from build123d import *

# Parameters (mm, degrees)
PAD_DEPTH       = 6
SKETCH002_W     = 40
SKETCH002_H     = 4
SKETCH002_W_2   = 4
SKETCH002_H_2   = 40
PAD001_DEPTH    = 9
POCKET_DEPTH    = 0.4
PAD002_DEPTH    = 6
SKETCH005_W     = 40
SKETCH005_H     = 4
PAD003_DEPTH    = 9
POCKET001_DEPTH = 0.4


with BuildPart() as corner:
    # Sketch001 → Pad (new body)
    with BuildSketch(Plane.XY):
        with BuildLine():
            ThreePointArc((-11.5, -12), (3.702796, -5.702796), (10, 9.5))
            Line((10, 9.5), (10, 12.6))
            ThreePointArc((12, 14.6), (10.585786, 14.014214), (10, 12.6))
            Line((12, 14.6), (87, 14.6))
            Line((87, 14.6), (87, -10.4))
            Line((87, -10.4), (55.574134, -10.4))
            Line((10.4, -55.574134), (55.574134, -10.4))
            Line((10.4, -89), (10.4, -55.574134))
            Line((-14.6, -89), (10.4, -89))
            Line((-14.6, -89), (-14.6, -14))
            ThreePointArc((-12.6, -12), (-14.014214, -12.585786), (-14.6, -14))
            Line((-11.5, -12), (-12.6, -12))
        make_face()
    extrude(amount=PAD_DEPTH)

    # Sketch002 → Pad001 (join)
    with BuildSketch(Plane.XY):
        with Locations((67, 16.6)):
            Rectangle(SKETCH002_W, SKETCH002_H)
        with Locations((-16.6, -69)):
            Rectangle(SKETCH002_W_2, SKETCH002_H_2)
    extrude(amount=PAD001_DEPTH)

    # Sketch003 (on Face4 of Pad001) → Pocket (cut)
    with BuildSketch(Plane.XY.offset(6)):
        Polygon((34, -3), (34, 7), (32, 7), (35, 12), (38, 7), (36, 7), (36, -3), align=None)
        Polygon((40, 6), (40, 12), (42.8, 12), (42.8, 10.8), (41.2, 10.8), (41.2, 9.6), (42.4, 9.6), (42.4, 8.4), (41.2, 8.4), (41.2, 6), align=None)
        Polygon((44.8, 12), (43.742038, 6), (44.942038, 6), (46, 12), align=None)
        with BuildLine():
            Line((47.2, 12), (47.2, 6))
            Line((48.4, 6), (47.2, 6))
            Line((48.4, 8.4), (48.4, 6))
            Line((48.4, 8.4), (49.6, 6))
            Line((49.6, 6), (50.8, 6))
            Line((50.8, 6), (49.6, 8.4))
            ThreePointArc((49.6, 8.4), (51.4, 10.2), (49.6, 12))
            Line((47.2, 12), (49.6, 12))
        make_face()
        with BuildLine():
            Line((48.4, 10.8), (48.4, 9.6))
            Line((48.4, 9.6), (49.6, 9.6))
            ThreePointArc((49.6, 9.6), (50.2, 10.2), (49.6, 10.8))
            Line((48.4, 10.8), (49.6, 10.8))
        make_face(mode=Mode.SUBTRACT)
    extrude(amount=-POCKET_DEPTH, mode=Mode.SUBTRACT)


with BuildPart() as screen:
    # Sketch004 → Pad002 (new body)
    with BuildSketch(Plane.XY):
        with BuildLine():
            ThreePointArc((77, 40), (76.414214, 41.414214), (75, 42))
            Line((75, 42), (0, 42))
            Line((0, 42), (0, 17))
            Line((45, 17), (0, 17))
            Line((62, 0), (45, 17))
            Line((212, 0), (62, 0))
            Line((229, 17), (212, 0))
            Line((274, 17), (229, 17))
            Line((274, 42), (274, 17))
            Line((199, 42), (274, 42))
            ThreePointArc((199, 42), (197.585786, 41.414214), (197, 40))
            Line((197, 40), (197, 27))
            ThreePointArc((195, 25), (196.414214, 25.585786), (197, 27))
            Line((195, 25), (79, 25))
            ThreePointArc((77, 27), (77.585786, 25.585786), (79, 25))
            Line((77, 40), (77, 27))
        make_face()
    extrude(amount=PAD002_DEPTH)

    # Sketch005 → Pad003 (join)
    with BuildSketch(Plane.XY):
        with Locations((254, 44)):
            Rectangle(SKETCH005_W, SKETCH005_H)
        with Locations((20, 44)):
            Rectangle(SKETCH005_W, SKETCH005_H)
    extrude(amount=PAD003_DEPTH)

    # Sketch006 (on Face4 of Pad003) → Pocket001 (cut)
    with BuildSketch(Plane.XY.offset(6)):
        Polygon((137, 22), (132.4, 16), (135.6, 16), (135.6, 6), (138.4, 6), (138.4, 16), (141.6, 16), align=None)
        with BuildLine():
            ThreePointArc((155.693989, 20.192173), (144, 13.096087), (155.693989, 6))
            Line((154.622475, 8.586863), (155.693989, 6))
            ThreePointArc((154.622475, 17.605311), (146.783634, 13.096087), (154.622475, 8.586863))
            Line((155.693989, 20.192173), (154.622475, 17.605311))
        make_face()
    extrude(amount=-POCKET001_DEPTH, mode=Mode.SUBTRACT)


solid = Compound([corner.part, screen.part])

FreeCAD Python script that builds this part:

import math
import FreeCAD as App
import Part
import Sketcher

V = App.Vector
Q = App.Units.Quantity

doc = App.newDocument("Part")
body = doc.addObject("PartDesign::Body", "Body")

# Sketch on XY plane
sketch1 = body.newObject("Sketcher::SketchObject", "Sketch")
sketch1.AttachmentSupport = (doc.getObject("XY_Plane"), [""])
sketch1.MapMode = "FlatFace"
sketch1.addGeometry(Part.ArcOfCircle(Part.Circle(V(-11.5, 9.5, 0), V(0, 0, 1), 21.5), math.radians(-90), math.radians(0)), False)
sketch1.addGeometry(Part.LineSegment(V(-11.5, -12, 0), V(-12.6, -12, 0)), False)
sketch1.addGeometry(Part.ArcOfCircle(Part.Circle(V(-12.6, -14, 0), V(0, 0, 1), 2), math.radians(90), math.radians(180)), False)
sketch1.addGeometry(Part.LineSegment(V(-14.6, -14, 0), V(-14.6, -89, 0)), False)
sketch1.addGeometry(Part.LineSegment(V(-14.6, -89, 0), V(10.4, -89, 0)), False)
sketch1.addGeometry(Part.LineSegment(V(10.4, -89, 0), V(10.4, -55.6, 0)), False)
sketch1.addGeometry(Part.LineSegment(V(10.4, -55.6, 0), V(55.6, -10.4, 0)), False)
sketch1.addGeometry(Part.LineSegment(V(55.6, -10.4, 0), V(87, -10.4, 0)), False)
sketch1.addGeometry(Part.LineSegment(V(87, -10.4, 0), V(87, 14.6, 0)), False)
sketch1.addGeometry(Part.LineSegment(V(87, 14.6, 0), V(12, 14.6, 0)), False)
sketch1.addGeometry(Part.ArcOfCircle(Part.Circle(V(12, 12.6, 0), V(0, 0, 1), 2), math.radians(90), math.radians(180)), False)
sketch1.addGeometry(Part.LineSegment(V(10, 12.6, 0), V(10, 9.5, 0)), False)
sketch1.addConstraint(Sketcher.Constraint("Tangent", 0, 1, 1, 1))
sketch1.addConstraint(Sketcher.Constraint("Tangent", 1, 2, 2, 1))
sketch1.addConstraint(Sketcher.Constraint("Tangent", 2, 2, 3, 1))
sketch1.addConstraint(Sketcher.Constraint("Coincident", 3, 2, 4, 1))
sketch1.addConstraint(Sketcher.Constraint("Coincident", 4, 2, 5, 1))
sketch1.addConstraint(Sketcher.Constraint("Coincident", 5, 2, 6, 1))
sketch1.addConstraint(Sketcher.Constraint("Coincident", 6, 2, 7, 1))
sketch1.addConstraint(Sketcher.Constraint("Coincident", 7, 2, 8, 1))
sketch1.addConstraint(Sketcher.Constraint("Coincident", 8, 2, 9, 1))
sketch1.addConstraint(Sketcher.Constraint("Tangent", 9, 2, 10, 1))
sketch1.addConstraint(Sketcher.Constraint("Tangent", 10, 2, 11, 1))
sketch1.addConstraint(Sketcher.Constraint("Tangent", 11, 2, 0, 2))
sketch1.addConstraint(Sketcher.Constraint("Horizontal", 1))
sketch1.addConstraint(Sketcher.Constraint("Vertical", 3))
sketch1.addConstraint(Sketcher.Constraint("Horizontal", 4))
sketch1.addConstraint(Sketcher.Constraint("Vertical", 5))
sketch1.addConstraint(Sketcher.Constraint("Horizontal", 7))
sketch1.addConstraint(Sketcher.Constraint("Vertical", 8))
sketch1.addConstraint(Sketcher.Constraint("Horizontal", 9))
sketch1.addConstraint(Sketcher.Constraint("Vertical", 11))
sketch1.addConstraint(Sketcher.Constraint("Equal", 2, 10))
sketch1.addConstraint(Sketcher.Constraint("Equal", 9, 3))
sketch1.addConstraint(Sketcher.Constraint("Equal", 4, 8))
sketch1.addConstraint(Sketcher.Constraint("Radius", 2, Q("1.999999 mm")))
sketch1.addConstraint(Sketcher.Constraint("Radius", 0, Q("21.499999 mm")))
sketch1.addConstraint(Sketcher.Constraint("DistanceX", 4, 1, 4, 2, Q("25 mm")))
sketch1.addConstraint(Sketcher.Constraint("DistanceX", 9, 2, 9, 1, Q("75 mm")))
sketch1.addConstraint(Sketcher.Constraint("Angle", 6, Q("45 deg")))
sketch1.addConstraint(Sketcher.Constraint("DistanceX", 1, 2, 1, 1, Q("1.1 mm")))
sketch1.addConstraint(Sketcher.Constraint("DistanceY", 11, 2, 11, 1, Q("3.1 mm")))
sketch1.addConstraint(Sketcher.Constraint("DistanceY", 2, 3, -1, 1, Q("13.999999 mm")))
sketch1.addConstraint(Sketcher.Constraint("DistanceX", -1, 1, 10, 3, Q("11.999999 mm")))
sketch1.addConstraint(Sketcher.Constraint("DistanceX", 7, 1, 7, 2, Q("31.425866 mm")))
pad1 = body.newObject("PartDesign::Pad", "Pad")
pad1.Profile = sketch1
pad1.Length = 6

# Sketch on XY plane
sketch2 = body.newObject("Sketcher::SketchObject", "Sketch001")
sketch2.AttachmentSupport = (doc.getObject("XY_Plane"), [""])
sketch2.MapMode = "FlatFace"
sketch2.addGeometry(Part.LineSegment(V(47, 18.6, 0), V(47, 14.6, 0)), False)
sketch2.addGeometry(Part.LineSegment(V(47, 14.6, 0), V(87, 14.6, 0)), False)
sketch2.addGeometry(Part.LineSegment(V(87, 14.6, 0), V(87, 18.6, 0)), False)
sketch2.addGeometry(Part.LineSegment(V(87, 18.6, 0), V(47, 18.6, 0)), False)
sketch2.addGeometry(Part.LineSegment(V(-18.6, -49, 0), V(-18.6, -89, 0)), False)
sketch2.addGeometry(Part.LineSegment(V(-18.6, -89, 0), V(-14.6, -89, 0)), False)
sketch2.addGeometry(Part.LineSegment(V(-14.6, -89, 0), V(-14.6, -49, 0)), False)
sketch2.addGeometry(Part.LineSegment(V(-14.6, -49, 0), V(-18.6, -49, 0)), False)
sketch2.addConstraint(Sketcher.Constraint("Coincident", 0, 2, 1, 1))
sketch2.addConstraint(Sketcher.Constraint("Coincident", 1, 2, 2, 1))
sketch2.addConstraint(Sketcher.Constraint("Coincident", 2, 2, 3, 1))
sketch2.addConstraint(Sketcher.Constraint("Coincident", 3, 2, 0, 1))
sketch2.addConstraint(Sketcher.Constraint("Coincident", 4, 2, 5, 1))
sketch2.addConstraint(Sketcher.Constraint("Coincident", 5, 2, 6, 1))
sketch2.addConstraint(Sketcher.Constraint("Coincident", 6, 2, 7, 1))
sketch2.addConstraint(Sketcher.Constraint("Coincident", 7, 2, 4, 1))
sketch2.addConstraint(Sketcher.Constraint("Vertical", 0))
sketch2.addConstraint(Sketcher.Constraint("Horizontal", 1))
sketch2.addConstraint(Sketcher.Constraint("Vertical", 2))
sketch2.addConstraint(Sketcher.Constraint("Horizontal", 3))
sketch2.addConstraint(Sketcher.Constraint("Vertical", 4))
sketch2.addConstraint(Sketcher.Constraint("Horizontal", 5))
sketch2.addConstraint(Sketcher.Constraint("Vertical", 6))
sketch2.addConstraint(Sketcher.Constraint("Horizontal", 7))
sketch2.addConstraint(Sketcher.Constraint("Equal", 7, 0))
sketch2.addConstraint(Sketcher.Constraint("Equal", 3, 4))
sketch2.addConstraint(Sketcher.Constraint("DistanceX", 1, 1, 1, 2, Q("40 mm")))
sketch2.addConstraint(Sketcher.Constraint("DistanceX", 5, 1, 5, 2, Q("4 mm")))
sketch2.addConstraint(Sketcher.Constraint("DistanceX", -1, 1, 0, 2, Q("47 mm")))
sketch2.addConstraint(Sketcher.Constraint("DistanceY", 4, 2, -1, 1, Q("89 mm")))
sketch2.addConstraint(Sketcher.Constraint("DistanceY", -1, 1, 0, 2, Q("14.6 mm")))
sketch2.addConstraint(Sketcher.Constraint("DistanceX", 4, 2, -1, 1, Q("18.6 mm")))
pad2 = body.newObject("PartDesign::Pad", "Pad001")
pad2.Profile = sketch2
pad2.Length = 9

# Sketch on XY plane
sketch3 = body.newObject("Sketcher::SketchObject", "Sketch002")
sketch3.AttachmentSupport = (doc.getObject("XY_Plane"), [""])
sketch3.MapMode = "FlatFace"
sketch3.AttachmentOffset = App.Placement(V(0, 0, 6), App.Rotation())
sketch3.addGeometry(Part.LineSegment(V(34, 7, 0), V(34, -3, 0)), False)
sketch3.addGeometry(Part.LineSegment(V(34, -3, 0), V(36, -3, 0)), False)
sketch3.addGeometry(Part.LineSegment(V(36, -3, 0), V(36, 7, 0)), False)
sketch3.addGeometry(Part.LineSegment(V(36, 7, 0), V(38, 7, 0)), False)
sketch3.addGeometry(Part.LineSegment(V(38, 7, 0), V(35, 12, 0)), False)
sketch3.addGeometry(Part.LineSegment(V(35, 12, 0), V(32, 7, 0)), False)
sketch3.addGeometry(Part.LineSegment(V(32, 7, 0), V(34, 7, 0)), False)
sketch3.addGeometry(Part.LineSegment(V(40, 12, 0), V(40, 6, 0)), False)
sketch3.addGeometry(Part.LineSegment(V(40, 6, 0), V(41.2, 6, 0)), False)
sketch3.addGeometry(Part.LineSegment(V(41.2, 6, 0), V(41.2, 8.4, 0)), False)
sketch3.addGeometry(Part.LineSegment(V(41.2, 8.4, 0), V(42.4, 8.4, 0)), False)
sketch3.addGeometry(Part.LineSegment(V(42.4, 8.4, 0), V(42.4, 9.6, 0)), False)
sketch3.addGeometry(Part.LineSegment(V(42.4, 9.6, 0), V(41.2, 9.6, 0)), False)
sketch3.addGeometry(Part.LineSegment(V(41.2, 9.6, 0), V(41.2, 10.8, 0)), False)
sketch3.addGeometry(Part.LineSegment(V(41.2, 10.8, 0), V(42.8, 10.8, 0)), False)
sketch3.addGeometry(Part.LineSegment(V(42.8, 10.8, 0), V(42.8, 12, 0)), False)
sketch3.addGeometry(Part.LineSegment(V(42.8, 12, 0), V(40, 12, 0)), False)
sketch3.addGeometry(Part.LineSegment(V(44.8, 12, 0), V(43.7, 6, 0)), False)
sketch3.addGeometry(Part.LineSegment(V(43.7, 6, 0), V(44.9, 6, 0)), False)
sketch3.addGeometry(Part.LineSegment(V(44.9, 6, 0), V(46, 12, 0)), False)
sketch3.addGeometry(Part.LineSegment(V(46, 12, 0), V(44.8, 12, 0)), False)
sketch3.addGeometry(Part.LineSegment(V(47.2, 12, 0), V(47.2, 6, 0)), False)
sketch3.addGeometry(Part.LineSegment(V(47.2, 6, 0), V(48.4, 6, 0)), False)
sketch3.addGeometry(Part.LineSegment(V(48.4, 6, 0), V(48.4, 8.4, 0)), False)
sketch3.addGeometry(Part.LineSegment(V(48.4, 8.4, 0), V(49.6, 6, 0)), False)
sketch3.addGeometry(Part.LineSegment(V(49.6, 6, 0), V(50.8, 6, 0)), False)
sketch3.addGeometry(Part.LineSegment(V(50.8, 6, 0), V(49.6, 8.4, 0)), False)
sketch3.addGeometry(Part.ArcOfCircle(Part.Circle(V(49.6, 10.2, 0), V(0, 0, 1), 1.8), math.radians(-90), math.radians(90)), False)
sketch3.addGeometry(Part.LineSegment(V(49.6, 12, 0), V(47.2, 12, 0)), False)
sketch3.addGeometry(Part.LineSegment(V(48.4, 9.6, 0), V(48.4, 10.8, 0)), False)
sketch3.addGeometry(Part.LineSegment(V(48.4, 10.8, 0), V(49.6, 10.8, 0)), False)
sketch3.addGeometry(Part.ArcOfCircle(Part.Circle(V(49.6, 10.2, 0), V(0, 0, 1), 0.6), math.radians(-90), math.radians(90)), False)
sketch3.addGeometry(Part.LineSegment(V(49.6, 9.6, 0), V(48.4, 9.6, 0)), False)
sketch3.addConstraint(Sketcher.Constraint("Coincident", 0, 2, 1, 1))
sketch3.addConstraint(Sketcher.Constraint("Coincident", 1, 2, 2, 1))
sketch3.addConstraint(Sketcher.Constraint("Coincident", 2, 2, 3, 1))
sketch3.addConstraint(Sketcher.Constraint("Coincident", 3, 2, 4, 1))
sketch3.addConstraint(Sketcher.Constraint("Coincident", 4, 2, 5, 1))
sketch3.addConstraint(Sketcher.Constraint("Coincident", 5, 2, 6, 1))
sketch3.addConstraint(Sketcher.Constraint("Coincident", 6, 2, 0, 1))
sketch3.addConstraint(Sketcher.Constraint("Coincident", 7, 2, 8, 1))
sketch3.addConstraint(Sketcher.Constraint("Coincident", 8, 2, 9, 1))
sketch3.addConstraint(Sketcher.Constraint("Coincident", 9, 2, 10, 1))
sketch3.addConstraint(Sketcher.Constraint("Coincident", 10, 2, 11, 1))
sketch3.addConstraint(Sketcher.Constraint("Coincident", 11, 2, 12, 1))
sketch3.addConstraint(Sketcher.Constraint("Coincident", 12, 2, 13, 1))
sketch3.addConstraint(Sketcher.Constraint("Coincident", 13, 2, 14, 1))
sketch3.addConstraint(Sketcher.Constraint("Coincident", 14, 2, 15, 1))
sketch3.addConstraint(Sketcher.Constraint("Coincident", 15, 2, 16, 1))
sketch3.addConstraint(Sketcher.Constraint("Coincident", 16, 2, 7, 1))
sketch3.addConstraint(Sketcher.Constraint("Coincident", 17, 2, 18, 1))
sketch3.addConstraint(Sketcher.Constraint("Coincident", 18, 2, 19, 1))
sketch3.addConstraint(Sketcher.Constraint("Coincident", 19, 2, 20, 1))
sketch3.addConstraint(Sketcher.Constraint("Coincident", 20, 2, 17, 1))
sketch3.addConstraint(Sketcher.Constraint("Coincident", 21, 2, 22, 1))
sketch3.addConstraint(Sketcher.Constraint("Coincident", 22, 2, 23, 1))
sketch3.addConstraint(Sketcher.Constraint("Coincident", 23, 2, 24, 1))
sketch3.addConstraint(Sketcher.Constraint("Coincident", 24, 2, 25, 1))
sketch3.addConstraint(Sketcher.Constraint("Coincident", 25, 2, 26, 1))
sketch3.addConstraint(Sketcher.Constraint("Coincident", 26, 2, 27, 1))
sketch3.addConstraint(Sketcher.Constraint("Tangent", 27, 2, 28, 1))
sketch3.addConstraint(Sketcher.Constraint("Coincident", 28, 2, 21, 1))
sketch3.addConstraint(Sketcher.Constraint("Coincident", 29, 2, 30, 1))
sketch3.addConstraint(Sketcher.Constraint("Tangent", 30, 2, 31, 2))
sketch3.addConstraint(Sketcher.Constraint("Tangent", 31, 1, 32, 1))
sketch3.addConstraint(Sketcher.Constraint("Coincident", 32, 2, 29, 1))
sketch3.addConstraint(Sketcher.Constraint("Vertical", 0))
sketch3.addConstraint(Sketcher.Constraint("Horizontal", 1))
sketch3.addConstraint(Sketcher.Constraint("Vertical", 2))
sketch3.addConstraint(Sketcher.Constraint("Horizontal", 3))
sketch3.addConstraint(Sketcher.Constraint("Horizontal", 6))
sketch3.addConstraint(Sketcher.Constraint("Vertical", 7))
sketch3.addConstraint(Sketcher.Constraint("Horizontal", 8))
sketch3.addConstraint(Sketcher.Constraint("Vertical", 9))
sketch3.addConstraint(Sketcher.Constraint("Horizontal", 10))
sketch3.addConstraint(Sketcher.Constraint("Vertical", 11))
sketch3.addConstraint(Sketcher.Constraint("Horizontal", 12))
sketch3.addConstraint(Sketcher.Constraint("Vertical", 13))
sketch3.addConstraint(Sketcher.Constraint("Horizontal", 14))
sketch3.addConstraint(Sketcher.Constraint("Vertical", 15))
sketch3.addConstraint(Sketcher.Constraint("Horizontal", 16))
sketch3.addConstraint(Sketcher.Constraint("Horizontal", 18))
sketch3.addConstraint(Sketcher.Constraint("Horizontal", 20))
sketch3.addConstraint(Sketcher.Constraint("Vertical", 21))
sketch3.addConstraint(Sketcher.Constraint("Horizontal", 22))
sketch3.addConstraint(Sketcher.Constraint("Vertical", 23))
sketch3.addConstraint(Sketcher.Constraint("Horizontal", 25))
sketch3.addConstraint(Sketcher.Constraint("Horizontal", 28))
sketch3.addConstraint(Sketcher.Constraint("Vertical", 29))
sketch3.addConstraint(Sketcher.Constraint("Horizontal", 30))
sketch3.addConstraint(Sketcher.Constraint("Horizontal", 32))
sketch3.addConstraint(Sketcher.Constraint("Coincident", 31, 3, 27, 3))
sketch3.addConstraint(Sketcher.Constraint("Parallel", 17, 19))
sketch3.addConstraint(Sketcher.Constraint("Parallel", 24, 26))
sketch3.addConstraint(Sketcher.Constraint("Horizontal", 3, 2, 5, 2))
sketch3.addConstraint(Sketcher.Constraint("Horizontal", 4, 2, 15, 2))
sketch3.addConstraint(Sketcher.Constraint("Horizontal", 8, 2, 17, 2))
sketch3.addConstraint(Sketcher.Constraint("Horizontal", 16, 2, 19, 2))
sketch3.addConstraint(Sketcher.Constraint("Horizontal", 18, 2, 21, 2))
sketch3.addConstraint(Sketcher.Constraint("Horizontal", 10, 2, 23, 2))
sketch3.addConstraint(Sketcher.Constraint("Horizontal", 22, 2, 24, 2))
sketch3.addConstraint(Sketcher.Constraint("Horizontal", 23, 2, 26, 2))
sketch3.addConstraint(Sketcher.Constraint("Horizontal", 20, 2, 27, 2))
sketch3.addConstraint(Sketcher.Constraint("Horizontal", 14, 2, 29, 2))
sketch3.addConstraint(Sketcher.Constraint("Horizontal", 12, 2, 31, 1))
sketch3.addConstraint(Sketcher.Constraint("Vertical", 9, 2, 12, 2))
sketch3.addConstraint(Sketcher.Constraint("Vertical", 31, 3, 24, 2))
sketch3.addConstraint(Sketcher.Constraint("Vertical", 24, 2, 26, 2))
sketch3.addConstraint(Sketcher.Constraint("Vertical", 23, 2, 29, 2))
sketch3.addConstraint(Sketcher.Constraint("Equal", 1, 3))
sketch3.addConstraint(Sketcher.Constraint("Equal", 3, 6))
sketch3.addConstraint(Sketcher.Constraint("Equal", 8, 10))
sketch3.addConstraint(Sketcher.Constraint("Equal", 12, 18))
sketch3.addConstraint(Sketcher.Constraint("Equal", 20, 22))
sketch3.addConstraint(Sketcher.Constraint("Equal", 22, 25))
sketch3.addConstraint(Sketcher.Constraint("Equal", 28, 9))
sketch3.addConstraint(Sketcher.Constraint("Equal", 32, 11))
sketch3.addConstraint(Sketcher.Constraint("Equal", 11, 13))
sketch3.addConstraint(Sketcher.Constraint("Equal", 4, 5))
sketch3.addConstraint(Sketcher.Constraint("Radius", 27, Q("1.8 mm")))
sketch3.addConstraint(Sketcher.Constraint("DistanceX", 1, 1, 1, 2, Q("2 mm")))
sketch3.addConstraint(Sketcher.Constraint("DistanceY", 0, 2, 0, 1, Q("10 mm")))
sketch3.addConstraint(Sketcher.Constraint("Angle", 17, Q("-100.000001 deg")))
sketch3.addConstraint(Sketcher.Constraint("DistanceX", 14, 1, 14, 2, Q("1.6 mm")))
sketch3.addConstraint(Sketcher.Constraint("DistanceX", -1, 1, 0, 2, Q("34 mm")))
sketch3.addConstraint(Sketcher.Constraint("DistanceY", 0, 2, -1, 1, Q("3 mm")))
sketch3.addConstraint(Sketcher.Constraint("DistanceY", -1, 1, 4, 2, Q("12 mm")))
sketch3.addConstraint(Sketcher.Constraint("DistanceX", -1, 1, 7, 2, Q("40 mm")))
sketch3.addConstraint(Sketcher.Constraint("DistanceX", -1, 1, 19, 2, Q("46 mm")))
sketch3.addConstraint(Sketcher.Constraint("DistanceX", -1, 1, 27, 3, Q("49.6 mm")))
pocket1 = body.newObject("PartDesign::Pocket", "Pocket")
pocket1.Profile = sketch3
pocket1.Length = 0.4
body2 = doc.addObject("PartDesign::Body", "Body001")

# Sketch on XY plane
sketch4 = body2.newObject("Sketcher::SketchObject", "Sketch003")
sketch4.AttachmentSupport = (doc.getObject("XY_Plane001"), [""])
sketch4.MapMode = "FlatFace"
sketch4.addGeometry(Part.ArcOfCircle(Part.Circle(V(75, 40, 0), V(0, 0, 1), 2), math.radians(0), math.radians(90)), False)
sketch4.addGeometry(Part.LineSegment(V(75, 42, 0), V(0, 42, 0)), False)
sketch4.addGeometry(Part.LineSegment(V(0, 42, 0), V(0, 17, 0)), False)
sketch4.addGeometry(Part.LineSegment(V(0, 17, 0), V(45, 17, 0)), False)
sketch4.addGeometry(Part.LineSegment(V(45, 17, 0), V(62, 0, 0)), False)
sketch4.addGeometry(Part.LineSegment(V(62, 0, 0), V(212, 0, 0)), False)
sketch4.addGeometry(Part.LineSegment(V(212, 0, 0), V(229, 17, 0)), False)
sketch4.addGeometry(Part.LineSegment(V(229, 17, 0), V(274, 17, 0)), False)
sketch4.addGeometry(Part.LineSegment(V(274, 17, 0), V(274, 42, 0)), False)
sketch4.addGeometry(Part.LineSegment(V(274, 42, 0), V(199, 42, 0)), False)
sketch4.addGeometry(Part.ArcOfCircle(Part.Circle(V(199, 40, 0), V(0, 0, 1), 2), math.radians(90), math.radians(180)), False)
sketch4.addGeometry(Part.LineSegment(V(197, 40, 0), V(197, 27, 0)), False)
sketch4.addGeometry(Part.ArcOfCircle(Part.Circle(V(195, 27, 0), V(0, 0, 1), 2), math.radians(-90), math.radians(0)), False)
sketch4.addGeometry(Part.LineSegment(V(195, 25, 0), V(79, 25, 0)), False)
sketch4.addGeometry(Part.ArcOfCircle(Part.Circle(V(79, 27, 0), V(0, 0, 1), 2), math.radians(180), math.radians(270)), False)
sketch4.addGeometry(Part.LineSegment(V(77, 27, 0), V(77, 40, 0)), False)
sketch4.addConstraint(Sketcher.Constraint("Tangent", 0, 2, 1, 1))
sketch4.addConstraint(Sketcher.Constraint("Coincident", 1, 2, 2, 1))
sketch4.addConstraint(Sketcher.Constraint("Coincident", 2, 2, 3, 1))
sketch4.addConstraint(Sketcher.Constraint("Coincident", 3, 2, 4, 1))
sketch4.addConstraint(Sketcher.Constraint("Coincident", 4, 2, 5, 1))
sketch4.addConstraint(Sketcher.Constraint("Coincident", 5, 2, 6, 1))
sketch4.addConstraint(Sketcher.Constraint("Coincident", 6, 2, 7, 1))
sketch4.addConstraint(Sketcher.Constraint("Coincident", 7, 2, 8, 1))
sketch4.addConstraint(Sketcher.Constraint("Coincident", 8, 2, 9, 1))
sketch4.addConstraint(Sketcher.Constraint("Tangent", 9, 2, 10, 1))
sketch4.addConstraint(Sketcher.Constraint("Tangent", 10, 2, 11, 1))
sketch4.addConstraint(Sketcher.Constraint("Tangent", 11, 2, 12, 2))
sketch4.addConstraint(Sketcher.Constraint("Tangent", 12, 1, 13, 1))
sketch4.addConstraint(Sketcher.Constraint("Tangent", 13, 2, 14, 2))
sketch4.addConstraint(Sketcher.Constraint("Tangent", 14, 1, 15, 1))
sketch4.addConstraint(Sketcher.Constraint("Tangent", 15, 2, 0, 1))
sketch4.addConstraint(Sketcher.Constraint("Horizontal", 1))
sketch4.addConstraint(Sketcher.Constraint("Vertical", 2))
sketch4.addConstraint(Sketcher.Constraint("Horizontal", 3))
sketch4.addConstraint(Sketcher.Constraint("Horizontal", 5))
sketch4.addConstraint(Sketcher.Constraint("Horizontal", 7))
sketch4.addConstraint(Sketcher.Constraint("Vertical", 8))
sketch4.addConstraint(Sketcher.Constraint("Horizontal", 9))
sketch4.addConstraint(Sketcher.Constraint("Vertical", 11))
sketch4.addConstraint(Sketcher.Constraint("Horizontal", 13))
sketch4.addConstraint(Sketcher.Constraint("Vertical", 15))
sketch4.addConstraint(Sketcher.Constraint("Equal", 0, 10))
sketch4.addConstraint(Sketcher.Constraint("Equal", 10, 12))
sketch4.addConstraint(Sketcher.Constraint("Equal", 12, 14))
sketch4.addConstraint(Sketcher.Constraint("PointOnObject", 1, 2, -2))
sketch4.addConstraint(Sketcher.Constraint("PointOnObject", 4, 2, -1))
sketch4.addConstraint(Sketcher.Constraint("Perpendicular", 4, 6))
sketch4.addConstraint(Sketcher.Constraint("Horizontal", 0, 3, 10, 3))
sketch4.addConstraint(Sketcher.Constraint("Horizontal", 3, 2, 6, 2))
sketch4.addConstraint(Sketcher.Constraint("Equal", 3, 7))
sketch4.addConstraint(Sketcher.Constraint("Equal", 1, 9))
sketch4.addConstraint(Sketcher.Constraint("Equal", 4, 6))
sketch4.addConstraint(Sketcher.Constraint("Radius", 0, Q("1.999999 mm")))
sketch4.addConstraint(Sketcher.Constraint("DistanceX", 1, 2, 1, 1, Q("75 mm")))
sketch4.addConstraint(Sketcher.Constraint("DistanceX", 3, 1, 3, 2, Q("45 mm")))
sketch4.addConstraint(Sketcher.Constraint("DistanceX", 5, 1, 5, 2, Q("150 mm")))
sketch4.addConstraint(Sketcher.Constraint("DistanceX", 13, 2, 13, 1, Q("116 mm")))
sketch4.addConstraint(Sketcher.Constraint("DistanceY", 2, 2, 2, 1, Q("25 mm")))
sketch4.addConstraint(Sketcher.Constraint("DistanceY", 11, 2, 11, 1, Q("13 mm")))
pad3 = body2.newObject("PartDesign::Pad", "Pad002")
pad3.Profile = sketch4
pad3.Length = 6

# Sketch on XY plane
sketch5 = body2.newObject("Sketcher::SketchObject", "Sketch004")
sketch5.AttachmentSupport = (doc.getObject("XY_Plane001"), [""])
sketch5.MapMode = "FlatFace"
sketch5.addGeometry(Part.LineSegment(V(234, 46, 0), V(234, 42, 0)), False)
sketch5.addGeometry(Part.LineSegment(V(234, 42, 0), V(274, 42, 0)), False)
sketch5.addGeometry(Part.LineSegment(V(274, 42, 0), V(274, 46, 0)), False)
sketch5.addGeometry(Part.LineSegment(V(274, 46, 0), V(234, 46, 0)), False)
sketch5.addGeometry(Part.LineSegment(V(0, 46, 0), V(0, 42, 0)), False)
sketch5.addGeometry(Part.LineSegment(V(0, 42, 0), V(40, 42, 0)), False)
sketch5.addGeometry(Part.LineSegment(V(40, 42, 0), V(40, 46, 0)), False)
sketch5.addGeometry(Part.LineSegment(V(40, 46, 0), V(0, 46, 0)), False)
sketch5.addConstraint(Sketcher.Constraint("Coincident", 0, 2, 1, 1))
sketch5.addConstraint(Sketcher.Constraint("Coincident", 1, 2, 2, 1))
sketch5.addConstraint(Sketcher.Constraint("Coincident", 2, 2, 3, 1))
sketch5.addConstraint(Sketcher.Constraint("Coincident", 3, 2, 0, 1))
sketch5.addConstraint(Sketcher.Constraint("Coincident", 4, 2, 5, 1))
sketch5.addConstraint(Sketcher.Constraint("Coincident", 5, 2, 6, 1))
sketch5.addConstraint(Sketcher.Constraint("Coincident", 6, 2, 7, 1))
sketch5.addConstraint(Sketcher.Constraint("Coincident", 7, 2, 4, 1))
sketch5.addConstraint(Sketcher.Constraint("Vertical", 0))
sketch5.addConstraint(Sketcher.Constraint("Horizontal", 1))
sketch5.addConstraint(Sketcher.Constraint("Vertical", 2))
sketch5.addConstraint(Sketcher.Constraint("Horizontal", 3))
sketch5.addConstraint(Sketcher.Constraint("Vertical", 4))
sketch5.addConstraint(Sketcher.Constraint("Horizontal", 5))
sketch5.addConstraint(Sketcher.Constraint("Vertical", 6))
sketch5.addConstraint(Sketcher.Constraint("Horizontal", 7))
sketch5.addConstraint(Sketcher.Constraint("PointOnObject", 4, 2, -2))
sketch5.addConstraint(Sketcher.Constraint("Horizontal", 1, 2, 4, 2))
sketch5.addConstraint(Sketcher.Constraint("Horizontal", 3, 2, 6, 2))
sketch5.addConstraint(Sketcher.Constraint("Equal", 3, 5))
sketch5.addConstraint(Sketcher.Constraint("DistanceX", 1, 1, 1, 2, Q("40 mm")))
sketch5.addConstraint(Sketcher.Constraint("DistanceY", 0, 2, 0, 1, Q("4 mm")))
sketch5.addConstraint(Sketcher.Constraint("DistanceX", -1, 1, 0, 2, Q("234 mm")))
sketch5.addConstraint(Sketcher.Constraint("DistanceY", -1, 1, 0, 2, Q("42 mm")))
pad4 = body2.newObject("PartDesign::Pad", "Pad003")
pad4.Profile = sketch5
pad4.Length = 9

# Sketch on XY plane
sketch6 = body2.newObject("Sketcher::SketchObject", "Sketch005")
sketch6.AttachmentSupport = (doc.getObject("XY_Plane001"), [""])
sketch6.MapMode = "FlatFace"
sketch6.AttachmentOffset = App.Placement(V(0, 0, 6), App.Rotation())
sketch6.addGeometry(Part.LineSegment(V(137, 22, 0), V(132.4, 16, 0)), False)
sketch6.addGeometry(Part.LineSegment(V(132.4, 16, 0), V(135.6, 16, 0)), False)
sketch6.addGeometry(Part.LineSegment(V(135.6, 16, 0), V(135.6, 6, 0)), False)
sketch6.addGeometry(Part.LineSegment(V(135.6, 6, 0), V(138.4, 6, 0)), False)
sketch6.addGeometry(Part.LineSegment(V(138.4, 6, 0), V(138.4, 16, 0)), False)
sketch6.addGeometry(Part.LineSegment(V(138.4, 16, 0), V(141.6, 16, 0)), False)
sketch6.addGeometry(Part.LineSegment(V(141.6, 16, 0), V(137, 22, 0)), False)
sketch6.addGeometry(Part.ArcOfCircle(Part.Circle(V(152, 13.1, 0), V(0, 0, 1), 8), math.radians(62), math.radians(298)), False)
sketch6.addGeometry(Part.LineSegment(V(155.7, 6, 0), V(154.6, 8.6, 0)), False)
sketch6.addGeometry(Part.ArcOfCircle(Part.Circle(V(152, 13.1, 0), V(0, 0, 1), 5.2), math.radians(60), math.radians(300)), False)
sketch6.addGeometry(Part.LineSegment(V(154.6, 17.6, 0), V(155.7, 20.2, 0)), False)
sketch6.addConstraint(Sketcher.Constraint("Coincident", 0, 2, 1, 1))
sketch6.addConstraint(Sketcher.Constraint("Coincident", 1, 2, 2, 1))
sketch6.addConstraint(Sketcher.Constraint("Coincident", 2, 2, 3, 1))
sketch6.addConstraint(Sketcher.Constraint("Coincident", 3, 2, 4, 1))
sketch6.addConstraint(Sketcher.Constraint("Coincident", 4, 2, 5, 1))
sketch6.addConstraint(Sketcher.Constraint("Coincident", 5, 2, 6, 1))
sketch6.addConstraint(Sketcher.Constraint("Coincident", 6, 2, 0, 1))
sketch6.addConstraint(Sketcher.Constraint("Coincident", 7, 2, 8, 1))
sketch6.addConstraint(Sketcher.Constraint("Coincident", 8, 2, 9, 2))
sketch6.addConstraint(Sketcher.Constraint("Coincident", 9, 1, 10, 1))
sketch6.addConstraint(Sketcher.Constraint("Coincident", 10, 2, 7, 1))
sketch6.addConstraint(Sketcher.Constraint("Horizontal", 1))
sketch6.addConstraint(Sketcher.Constraint("Vertical", 2))
sketch6.addConstraint(Sketcher.Constraint("Horizontal", 3))
sketch6.addConstraint(Sketcher.Constraint("Vertical", 4))
sketch6.addConstraint(Sketcher.Constraint("Horizontal", 5))
sketch6.addConstraint(Sketcher.Constraint("Coincident", 9, 3, 7, 3))
sketch6.addConstraint(Sketcher.Constraint("Horizontal", 1, 2, 4, 2))
sketch6.addConstraint(Sketcher.Constraint("Horizontal", 3, 2, 7, 2))
sketch6.addConstraint(Sketcher.Constraint("Vertical", 8, 2, 9, 1))
sketch6.addConstraint(Sketcher.Constraint("Vertical", 7, 2, 10, 2))
sketch6.addConstraint(Sketcher.Constraint("Equal", 1, 5))
sketch6.addConstraint(Sketcher.Constraint("Equal", 0, 6))
sketch6.addConstraint(Sketcher.Constraint("Radius", 7, Q("8 mm")))
sketch6.addConstraint(Sketcher.Constraint("DistanceY", 2, 2, 2, 1, Q("10 mm")))
sketch6.addConstraint(Sketcher.Constraint("DistanceX", 1, 1, 1, 2, Q("3.2 mm")))
sketch6.addConstraint(Sketcher.Constraint("DistanceX", 3, 1, 3, 2, Q("2.8 mm")))
sketch6.addConstraint(Sketcher.Constraint("DistanceX", -1, 1, 7, 3, Q("152 mm")))
sketch6.addConstraint(Sketcher.Constraint("DistanceY", -1, 1, 0, 2, Q("16 mm")))
sketch6.addConstraint(Sketcher.Constraint("DistanceX", -1, 1, 6, 2, Q("137 mm")))
sketch6.addConstraint(Sketcher.Constraint("DistanceY", -1, 1, 6, 2, Q("22 mm")))
sketch6.addConstraint(Sketcher.Constraint("Angle", 8, Q("112.500005 deg")))
sketch6.addConstraint(Sketcher.Constraint("Distance", 8, Q("2.8 mm")))
sketch6.addConstraint(Sketcher.Constraint("Radius", 9, Q("5.216366 mm")))
pocket2 = body2.newObject("PartDesign::Pocket", "Pocket001")
pocket2.Profile = sketch6
pocket2.Length = 0.4

doc.recompute()
